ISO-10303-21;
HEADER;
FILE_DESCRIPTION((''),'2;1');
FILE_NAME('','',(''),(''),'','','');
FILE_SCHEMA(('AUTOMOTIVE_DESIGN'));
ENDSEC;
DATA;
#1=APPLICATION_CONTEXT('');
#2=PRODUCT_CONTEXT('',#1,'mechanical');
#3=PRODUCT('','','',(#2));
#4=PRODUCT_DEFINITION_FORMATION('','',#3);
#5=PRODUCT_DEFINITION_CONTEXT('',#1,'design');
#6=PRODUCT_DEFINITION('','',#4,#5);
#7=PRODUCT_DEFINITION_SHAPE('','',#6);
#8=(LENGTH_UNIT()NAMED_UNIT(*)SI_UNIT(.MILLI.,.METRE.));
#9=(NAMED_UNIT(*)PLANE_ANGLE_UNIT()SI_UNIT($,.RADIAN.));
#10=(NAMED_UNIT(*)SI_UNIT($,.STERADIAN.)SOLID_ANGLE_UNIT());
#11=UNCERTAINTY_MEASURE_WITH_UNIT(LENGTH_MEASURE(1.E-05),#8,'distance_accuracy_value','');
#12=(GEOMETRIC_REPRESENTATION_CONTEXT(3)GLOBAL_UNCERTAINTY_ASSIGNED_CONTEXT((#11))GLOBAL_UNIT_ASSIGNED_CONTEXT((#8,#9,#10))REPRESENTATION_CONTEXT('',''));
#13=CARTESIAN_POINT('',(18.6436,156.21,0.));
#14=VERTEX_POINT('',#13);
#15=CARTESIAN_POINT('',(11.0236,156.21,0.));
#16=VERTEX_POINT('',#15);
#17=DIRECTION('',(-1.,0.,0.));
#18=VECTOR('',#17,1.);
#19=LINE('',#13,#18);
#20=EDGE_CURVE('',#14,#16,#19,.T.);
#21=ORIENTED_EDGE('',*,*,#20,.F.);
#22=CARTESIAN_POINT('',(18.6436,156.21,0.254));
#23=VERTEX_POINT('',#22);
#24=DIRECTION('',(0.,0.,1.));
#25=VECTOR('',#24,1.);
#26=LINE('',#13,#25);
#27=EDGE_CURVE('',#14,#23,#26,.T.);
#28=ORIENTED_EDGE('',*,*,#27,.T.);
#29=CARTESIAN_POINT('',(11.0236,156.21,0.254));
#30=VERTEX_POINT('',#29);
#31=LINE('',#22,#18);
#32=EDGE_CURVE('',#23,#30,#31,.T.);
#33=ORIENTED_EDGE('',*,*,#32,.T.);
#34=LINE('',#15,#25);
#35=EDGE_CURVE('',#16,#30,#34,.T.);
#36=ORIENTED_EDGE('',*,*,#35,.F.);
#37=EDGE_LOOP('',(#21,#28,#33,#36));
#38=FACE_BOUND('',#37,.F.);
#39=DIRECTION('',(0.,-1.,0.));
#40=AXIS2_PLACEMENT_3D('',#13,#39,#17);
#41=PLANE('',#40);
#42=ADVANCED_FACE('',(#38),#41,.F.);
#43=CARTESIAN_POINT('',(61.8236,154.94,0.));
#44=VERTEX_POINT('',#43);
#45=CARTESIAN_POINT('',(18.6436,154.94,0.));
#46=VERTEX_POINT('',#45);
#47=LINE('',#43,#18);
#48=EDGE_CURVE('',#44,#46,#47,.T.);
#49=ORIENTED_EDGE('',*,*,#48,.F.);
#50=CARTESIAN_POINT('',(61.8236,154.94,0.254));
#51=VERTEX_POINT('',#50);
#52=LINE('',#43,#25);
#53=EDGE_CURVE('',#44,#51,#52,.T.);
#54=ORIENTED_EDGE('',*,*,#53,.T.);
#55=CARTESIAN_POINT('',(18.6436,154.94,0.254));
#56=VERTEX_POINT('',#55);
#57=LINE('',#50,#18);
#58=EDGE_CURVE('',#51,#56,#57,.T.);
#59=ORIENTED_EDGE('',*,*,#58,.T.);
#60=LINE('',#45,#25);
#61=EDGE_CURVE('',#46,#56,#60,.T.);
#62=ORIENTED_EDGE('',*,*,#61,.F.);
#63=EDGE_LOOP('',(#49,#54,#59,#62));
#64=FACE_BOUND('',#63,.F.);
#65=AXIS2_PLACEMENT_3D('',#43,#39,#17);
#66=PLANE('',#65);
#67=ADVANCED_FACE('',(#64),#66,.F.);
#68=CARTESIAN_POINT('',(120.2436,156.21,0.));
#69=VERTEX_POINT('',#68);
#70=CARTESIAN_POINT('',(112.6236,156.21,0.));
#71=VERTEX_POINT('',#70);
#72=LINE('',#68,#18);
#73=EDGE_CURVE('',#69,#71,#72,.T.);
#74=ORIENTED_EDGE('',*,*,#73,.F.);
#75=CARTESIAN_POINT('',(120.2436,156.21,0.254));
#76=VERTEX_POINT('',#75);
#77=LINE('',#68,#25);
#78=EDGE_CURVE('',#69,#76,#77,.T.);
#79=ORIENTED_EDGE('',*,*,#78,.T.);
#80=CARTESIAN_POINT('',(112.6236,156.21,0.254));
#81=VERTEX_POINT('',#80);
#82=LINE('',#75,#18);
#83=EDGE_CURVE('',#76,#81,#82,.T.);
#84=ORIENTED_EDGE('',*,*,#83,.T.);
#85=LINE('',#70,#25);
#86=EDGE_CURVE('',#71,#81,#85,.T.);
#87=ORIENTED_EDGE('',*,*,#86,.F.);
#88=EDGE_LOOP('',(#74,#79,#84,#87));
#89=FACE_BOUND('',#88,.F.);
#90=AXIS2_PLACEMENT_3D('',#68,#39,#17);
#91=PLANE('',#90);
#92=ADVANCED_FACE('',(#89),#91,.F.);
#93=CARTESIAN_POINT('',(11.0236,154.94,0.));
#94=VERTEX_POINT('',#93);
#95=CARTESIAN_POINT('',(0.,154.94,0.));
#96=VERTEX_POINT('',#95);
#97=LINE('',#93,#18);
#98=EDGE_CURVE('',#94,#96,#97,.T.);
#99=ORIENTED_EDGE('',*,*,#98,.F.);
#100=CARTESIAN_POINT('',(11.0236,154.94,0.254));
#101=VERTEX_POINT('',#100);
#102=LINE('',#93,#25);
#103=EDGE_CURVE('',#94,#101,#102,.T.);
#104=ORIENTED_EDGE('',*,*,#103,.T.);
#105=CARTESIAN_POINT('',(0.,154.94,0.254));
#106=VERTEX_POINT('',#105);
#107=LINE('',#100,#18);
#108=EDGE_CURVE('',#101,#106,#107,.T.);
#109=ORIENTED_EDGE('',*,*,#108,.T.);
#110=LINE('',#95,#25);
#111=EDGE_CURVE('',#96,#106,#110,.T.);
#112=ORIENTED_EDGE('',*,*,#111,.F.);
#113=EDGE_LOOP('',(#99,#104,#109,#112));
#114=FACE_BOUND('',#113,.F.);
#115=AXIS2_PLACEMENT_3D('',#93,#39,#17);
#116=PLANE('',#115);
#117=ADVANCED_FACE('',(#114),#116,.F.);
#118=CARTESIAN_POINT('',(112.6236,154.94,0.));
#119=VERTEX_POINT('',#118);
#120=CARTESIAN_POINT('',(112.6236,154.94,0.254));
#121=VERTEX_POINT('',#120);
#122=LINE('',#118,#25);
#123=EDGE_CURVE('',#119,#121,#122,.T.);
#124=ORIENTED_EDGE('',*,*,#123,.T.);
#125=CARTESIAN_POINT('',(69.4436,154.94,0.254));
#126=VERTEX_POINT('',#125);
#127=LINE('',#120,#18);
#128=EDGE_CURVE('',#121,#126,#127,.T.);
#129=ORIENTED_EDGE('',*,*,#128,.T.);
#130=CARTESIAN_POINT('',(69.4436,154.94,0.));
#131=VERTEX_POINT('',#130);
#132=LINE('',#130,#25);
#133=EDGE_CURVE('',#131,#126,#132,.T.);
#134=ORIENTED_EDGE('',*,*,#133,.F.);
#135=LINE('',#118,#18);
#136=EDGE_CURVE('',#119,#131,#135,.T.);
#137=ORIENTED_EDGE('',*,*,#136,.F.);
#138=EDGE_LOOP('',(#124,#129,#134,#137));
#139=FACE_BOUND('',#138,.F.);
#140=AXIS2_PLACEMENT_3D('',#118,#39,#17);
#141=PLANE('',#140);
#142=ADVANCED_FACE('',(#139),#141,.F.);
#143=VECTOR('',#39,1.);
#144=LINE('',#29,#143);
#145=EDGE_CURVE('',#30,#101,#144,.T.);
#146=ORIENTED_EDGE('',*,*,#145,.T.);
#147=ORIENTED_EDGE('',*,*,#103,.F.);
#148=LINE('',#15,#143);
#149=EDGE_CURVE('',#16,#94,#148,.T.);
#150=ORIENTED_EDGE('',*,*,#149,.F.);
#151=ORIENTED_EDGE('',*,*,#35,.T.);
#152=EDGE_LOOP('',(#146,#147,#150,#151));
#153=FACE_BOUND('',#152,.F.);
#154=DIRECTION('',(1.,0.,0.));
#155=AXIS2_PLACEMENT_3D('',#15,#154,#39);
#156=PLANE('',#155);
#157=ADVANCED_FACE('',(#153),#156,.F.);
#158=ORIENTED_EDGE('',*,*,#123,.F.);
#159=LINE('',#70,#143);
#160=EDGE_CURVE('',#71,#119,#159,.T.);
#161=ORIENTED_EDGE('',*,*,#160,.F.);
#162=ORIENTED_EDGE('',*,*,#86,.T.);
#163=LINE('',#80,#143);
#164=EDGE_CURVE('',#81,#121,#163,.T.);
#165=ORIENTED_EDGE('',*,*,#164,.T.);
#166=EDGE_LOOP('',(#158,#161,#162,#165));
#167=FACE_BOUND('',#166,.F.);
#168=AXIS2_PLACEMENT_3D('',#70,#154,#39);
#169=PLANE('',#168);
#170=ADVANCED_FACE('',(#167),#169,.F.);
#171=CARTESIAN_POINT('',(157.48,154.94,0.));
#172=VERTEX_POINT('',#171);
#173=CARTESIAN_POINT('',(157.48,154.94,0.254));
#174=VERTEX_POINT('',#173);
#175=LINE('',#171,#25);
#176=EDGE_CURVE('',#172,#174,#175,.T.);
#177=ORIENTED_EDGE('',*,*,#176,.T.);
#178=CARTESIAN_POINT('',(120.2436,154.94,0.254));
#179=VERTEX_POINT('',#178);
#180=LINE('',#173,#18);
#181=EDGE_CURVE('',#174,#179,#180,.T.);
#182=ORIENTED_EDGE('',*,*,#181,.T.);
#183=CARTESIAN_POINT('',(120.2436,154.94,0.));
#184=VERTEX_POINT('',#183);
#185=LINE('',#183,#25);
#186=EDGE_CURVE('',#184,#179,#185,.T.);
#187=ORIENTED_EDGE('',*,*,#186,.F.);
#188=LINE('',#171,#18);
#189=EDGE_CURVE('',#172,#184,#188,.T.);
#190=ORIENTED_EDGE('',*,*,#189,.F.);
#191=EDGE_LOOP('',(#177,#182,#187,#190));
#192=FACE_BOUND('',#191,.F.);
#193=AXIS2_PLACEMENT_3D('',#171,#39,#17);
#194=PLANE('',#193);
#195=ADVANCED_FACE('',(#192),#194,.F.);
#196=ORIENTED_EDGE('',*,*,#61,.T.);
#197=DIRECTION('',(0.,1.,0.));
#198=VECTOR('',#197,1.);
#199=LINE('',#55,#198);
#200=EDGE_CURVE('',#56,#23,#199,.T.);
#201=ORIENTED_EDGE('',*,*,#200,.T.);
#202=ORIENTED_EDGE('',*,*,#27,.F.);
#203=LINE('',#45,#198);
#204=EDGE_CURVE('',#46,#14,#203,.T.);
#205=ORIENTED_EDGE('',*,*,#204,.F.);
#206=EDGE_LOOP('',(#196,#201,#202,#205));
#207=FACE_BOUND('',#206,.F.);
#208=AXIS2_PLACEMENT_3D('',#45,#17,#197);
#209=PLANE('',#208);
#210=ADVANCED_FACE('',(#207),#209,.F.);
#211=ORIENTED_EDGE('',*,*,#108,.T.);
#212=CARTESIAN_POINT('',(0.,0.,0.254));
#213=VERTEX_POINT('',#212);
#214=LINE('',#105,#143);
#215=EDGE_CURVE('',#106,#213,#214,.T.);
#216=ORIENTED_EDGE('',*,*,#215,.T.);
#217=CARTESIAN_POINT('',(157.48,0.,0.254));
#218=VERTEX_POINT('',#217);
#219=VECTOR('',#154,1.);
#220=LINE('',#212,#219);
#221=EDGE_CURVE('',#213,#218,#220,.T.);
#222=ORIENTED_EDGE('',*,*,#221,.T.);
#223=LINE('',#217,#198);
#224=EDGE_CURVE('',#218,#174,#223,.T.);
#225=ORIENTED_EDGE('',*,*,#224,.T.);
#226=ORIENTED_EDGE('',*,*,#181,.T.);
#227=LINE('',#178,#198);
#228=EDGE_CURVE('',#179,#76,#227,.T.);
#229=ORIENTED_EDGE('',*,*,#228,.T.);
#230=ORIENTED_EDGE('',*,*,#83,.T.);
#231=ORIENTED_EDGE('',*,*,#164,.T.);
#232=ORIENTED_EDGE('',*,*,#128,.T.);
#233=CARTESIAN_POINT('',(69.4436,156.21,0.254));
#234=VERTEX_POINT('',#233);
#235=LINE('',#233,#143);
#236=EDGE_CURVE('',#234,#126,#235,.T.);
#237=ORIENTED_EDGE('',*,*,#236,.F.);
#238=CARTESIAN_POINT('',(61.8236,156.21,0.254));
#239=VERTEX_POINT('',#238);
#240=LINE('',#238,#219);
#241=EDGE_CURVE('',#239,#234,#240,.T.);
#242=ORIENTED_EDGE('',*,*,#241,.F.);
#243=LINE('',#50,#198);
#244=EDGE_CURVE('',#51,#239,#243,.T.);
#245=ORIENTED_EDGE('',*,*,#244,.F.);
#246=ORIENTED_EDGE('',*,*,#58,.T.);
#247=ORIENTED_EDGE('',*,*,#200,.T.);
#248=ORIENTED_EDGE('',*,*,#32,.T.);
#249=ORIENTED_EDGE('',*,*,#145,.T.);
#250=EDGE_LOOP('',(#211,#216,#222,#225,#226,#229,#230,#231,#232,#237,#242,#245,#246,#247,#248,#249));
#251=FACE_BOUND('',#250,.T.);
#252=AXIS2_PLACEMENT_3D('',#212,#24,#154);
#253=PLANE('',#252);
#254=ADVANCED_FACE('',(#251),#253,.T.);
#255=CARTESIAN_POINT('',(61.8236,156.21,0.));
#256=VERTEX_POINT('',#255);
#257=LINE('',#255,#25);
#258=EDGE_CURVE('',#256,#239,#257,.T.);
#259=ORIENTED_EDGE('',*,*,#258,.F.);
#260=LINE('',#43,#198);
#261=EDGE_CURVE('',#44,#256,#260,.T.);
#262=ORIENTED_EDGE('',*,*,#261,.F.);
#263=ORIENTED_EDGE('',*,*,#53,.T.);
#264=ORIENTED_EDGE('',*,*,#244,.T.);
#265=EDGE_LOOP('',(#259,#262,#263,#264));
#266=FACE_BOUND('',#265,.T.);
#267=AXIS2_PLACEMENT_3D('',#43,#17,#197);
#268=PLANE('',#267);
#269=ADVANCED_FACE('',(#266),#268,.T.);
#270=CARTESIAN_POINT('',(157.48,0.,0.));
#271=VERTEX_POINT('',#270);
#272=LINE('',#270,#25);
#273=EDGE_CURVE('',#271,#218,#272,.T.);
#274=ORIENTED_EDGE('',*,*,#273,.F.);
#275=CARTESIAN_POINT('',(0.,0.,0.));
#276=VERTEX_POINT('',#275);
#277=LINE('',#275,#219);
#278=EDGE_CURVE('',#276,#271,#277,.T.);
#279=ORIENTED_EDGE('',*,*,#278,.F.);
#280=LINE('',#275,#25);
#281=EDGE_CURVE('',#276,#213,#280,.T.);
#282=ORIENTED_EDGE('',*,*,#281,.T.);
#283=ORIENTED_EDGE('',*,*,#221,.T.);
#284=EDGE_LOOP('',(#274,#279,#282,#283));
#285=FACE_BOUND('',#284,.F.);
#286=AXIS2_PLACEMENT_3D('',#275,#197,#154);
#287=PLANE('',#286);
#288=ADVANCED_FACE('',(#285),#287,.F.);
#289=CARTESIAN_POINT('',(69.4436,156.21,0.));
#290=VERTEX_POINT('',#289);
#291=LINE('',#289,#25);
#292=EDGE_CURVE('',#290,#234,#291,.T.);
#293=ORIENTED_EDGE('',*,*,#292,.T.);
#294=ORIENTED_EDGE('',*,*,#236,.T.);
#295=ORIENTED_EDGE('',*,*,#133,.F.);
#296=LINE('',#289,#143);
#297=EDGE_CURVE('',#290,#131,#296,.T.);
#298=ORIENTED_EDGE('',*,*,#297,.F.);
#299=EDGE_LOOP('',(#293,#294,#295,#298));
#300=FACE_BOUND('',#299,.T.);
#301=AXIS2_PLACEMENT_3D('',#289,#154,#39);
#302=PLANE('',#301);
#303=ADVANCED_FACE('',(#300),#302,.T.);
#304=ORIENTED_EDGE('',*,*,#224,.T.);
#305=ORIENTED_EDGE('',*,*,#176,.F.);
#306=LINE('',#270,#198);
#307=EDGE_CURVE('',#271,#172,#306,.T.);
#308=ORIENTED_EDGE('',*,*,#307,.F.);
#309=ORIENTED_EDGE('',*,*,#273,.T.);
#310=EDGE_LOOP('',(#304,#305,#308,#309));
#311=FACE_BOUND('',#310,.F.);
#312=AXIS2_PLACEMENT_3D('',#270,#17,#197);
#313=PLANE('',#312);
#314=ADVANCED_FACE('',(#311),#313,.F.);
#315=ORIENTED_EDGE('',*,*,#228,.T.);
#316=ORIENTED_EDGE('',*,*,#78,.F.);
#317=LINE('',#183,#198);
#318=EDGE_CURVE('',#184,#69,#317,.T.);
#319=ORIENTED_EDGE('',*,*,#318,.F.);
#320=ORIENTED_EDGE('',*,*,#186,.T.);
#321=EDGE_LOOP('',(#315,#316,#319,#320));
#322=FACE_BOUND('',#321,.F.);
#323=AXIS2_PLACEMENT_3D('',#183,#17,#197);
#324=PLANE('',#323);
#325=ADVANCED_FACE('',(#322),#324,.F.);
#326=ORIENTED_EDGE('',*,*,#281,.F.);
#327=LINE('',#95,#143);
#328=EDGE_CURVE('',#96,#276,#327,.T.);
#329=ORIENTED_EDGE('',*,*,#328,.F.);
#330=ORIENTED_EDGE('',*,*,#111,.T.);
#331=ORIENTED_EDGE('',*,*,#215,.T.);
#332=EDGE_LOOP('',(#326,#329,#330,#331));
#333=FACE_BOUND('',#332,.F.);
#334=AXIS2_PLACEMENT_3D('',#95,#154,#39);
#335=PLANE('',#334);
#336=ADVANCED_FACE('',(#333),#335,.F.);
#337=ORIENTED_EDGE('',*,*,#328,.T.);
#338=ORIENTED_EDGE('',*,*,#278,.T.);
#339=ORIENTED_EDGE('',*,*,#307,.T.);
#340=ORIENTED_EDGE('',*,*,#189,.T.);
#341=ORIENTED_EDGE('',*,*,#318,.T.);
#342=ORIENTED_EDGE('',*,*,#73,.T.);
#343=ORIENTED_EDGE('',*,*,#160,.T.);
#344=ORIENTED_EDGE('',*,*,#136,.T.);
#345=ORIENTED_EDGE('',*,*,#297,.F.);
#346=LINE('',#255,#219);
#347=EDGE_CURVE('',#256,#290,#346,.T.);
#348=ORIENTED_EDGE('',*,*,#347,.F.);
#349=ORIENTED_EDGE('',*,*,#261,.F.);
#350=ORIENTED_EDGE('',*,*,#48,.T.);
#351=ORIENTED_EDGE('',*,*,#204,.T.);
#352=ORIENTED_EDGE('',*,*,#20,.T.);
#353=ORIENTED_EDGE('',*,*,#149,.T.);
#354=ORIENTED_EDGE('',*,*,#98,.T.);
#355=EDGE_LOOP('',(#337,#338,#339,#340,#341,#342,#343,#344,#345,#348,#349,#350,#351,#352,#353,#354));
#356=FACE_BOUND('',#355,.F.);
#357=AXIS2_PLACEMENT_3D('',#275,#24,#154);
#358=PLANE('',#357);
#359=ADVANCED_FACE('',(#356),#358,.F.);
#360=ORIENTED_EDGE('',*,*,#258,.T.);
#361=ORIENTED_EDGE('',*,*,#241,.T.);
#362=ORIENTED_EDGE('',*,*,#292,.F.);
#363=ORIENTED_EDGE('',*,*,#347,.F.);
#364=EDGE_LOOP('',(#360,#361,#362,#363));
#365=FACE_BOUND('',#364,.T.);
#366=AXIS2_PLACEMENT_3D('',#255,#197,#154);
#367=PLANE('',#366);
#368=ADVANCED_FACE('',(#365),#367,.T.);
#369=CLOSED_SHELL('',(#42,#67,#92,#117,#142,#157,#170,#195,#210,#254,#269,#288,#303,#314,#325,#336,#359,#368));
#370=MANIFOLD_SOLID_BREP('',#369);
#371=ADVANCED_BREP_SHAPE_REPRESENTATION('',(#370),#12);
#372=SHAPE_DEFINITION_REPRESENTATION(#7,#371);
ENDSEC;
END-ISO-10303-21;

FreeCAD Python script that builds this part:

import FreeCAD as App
import Part
import Sketcher

V = App.Vector
Q = App.Units.Quantity


def add_polygon(sketch, points):
    """Adds a closed chain of lines whose ends are joined by coincident constraints."""
    first, n = sketch.GeometryCount, len(points)
    for a, b in zip(points, points[1:] + points[:1]):
        sketch.addGeometry(Part.LineSegment(App.Vector(*a, 0), App.Vector(*b, 0)), False)
    for i in range(n):
        sketch.addConstraint(Sketcher.Constraint("Coincident", first + i, 2, first + (i + 1) % n, 1))

doc = App.newDocument("Part")
body = doc.addObject("PartDesign::Body", "Body")

# Sketch on XY plane
sketch1 = body.newObject("Sketcher::SketchObject", "Sketch")
sketch1.AttachmentSupport = (doc.getObject("XY_Plane"), [""])
sketch1.MapMode = "FlatFace"
add_polygon(sketch1, [(0, 154.9), (0, 0), (157.5, 0), (157.5, 154.9), (120.2, 154.9), (120.2, 156.2), (112.6, 156.2), (112.6, 154.9), (69.4, 154.9), (69.4, 156.2), (61.8, 156.2), (61.8, 154.9), (18.6, 154.9), (18.6, 156.2), (11, 156.2), (11, 154.9)])  # lines 0-15
sketch1.addConstraint([
    Sketcher.Constraint("Vertical", 0),
    Sketcher.Constraint("Horizontal", 1),
    Sketcher.Constraint("Vertical", 2),
    Sketcher.Constraint("Horizontal", 3),
    Sketcher.Constraint("Vertical", 4),
    Sketcher.Constraint("Horizontal", 5),
    Sketcher.Constraint("Vertical", 6),
    Sketcher.Constraint("Horizontal", 7),
    Sketcher.Constraint("Vertical", 8),
    Sketcher.Constraint("Horizontal", 9),
    Sketcher.Constraint("Vertical", 10),
    Sketcher.Constraint("Horizontal", 11),
    Sketcher.Constraint("Vertical", 12),
    Sketcher.Constraint("Horizontal", 13),
    Sketcher.Constraint("Vertical", 14),
    Sketcher.Constraint("Horizontal", 15),
    Sketcher.Constraint("Coincident", 0, 2, -1, 1),
    Sketcher.Constraint("Horizontal", 3, 2, 6, 2),
    Sketcher.Constraint("Horizontal", 5, 2, 8, 2),
    Sketcher.Constraint("Horizontal", 7, 2, 10, 2),
    Sketcher.Constraint("Horizontal", 9, 2, 12, 2),
    Sketcher.Constraint("Horizontal", 11, 2, 14, 2),
    Sketcher.Constraint("Equal", 5, 9),
    Sketcher.Constraint("Equal", 7, 11),
    Sketcher.Constraint("Equal", 9, 13),
    Sketcher.Constraint("DistanceX", 1, 1, 1, 2, Q("6.2 in")),
    Sketcher.Constraint("DistanceX", 5, 2, 5, 1, Q("0.3 in")),
    Sketcher.Constraint("DistanceY", 0, 2, 0, 1, Q("6.1 in")),
    Sketcher.Constraint("DistanceY", 4, 1, 4, 2, Q("0.05 in")),
    Sketcher.Constraint("DistanceX", 15, 2, 15, 1, Q("0.434 in")),
    Sketcher.Constraint("DistanceX", 7, 2, 7, 1, Q("1.7 in")),
])
pad1 = body.newObject("PartDesign::Pad", "Pad")
pad1.Profile = sketch1
pad1.Length = Q("0.01 in")

doc.recompute()
